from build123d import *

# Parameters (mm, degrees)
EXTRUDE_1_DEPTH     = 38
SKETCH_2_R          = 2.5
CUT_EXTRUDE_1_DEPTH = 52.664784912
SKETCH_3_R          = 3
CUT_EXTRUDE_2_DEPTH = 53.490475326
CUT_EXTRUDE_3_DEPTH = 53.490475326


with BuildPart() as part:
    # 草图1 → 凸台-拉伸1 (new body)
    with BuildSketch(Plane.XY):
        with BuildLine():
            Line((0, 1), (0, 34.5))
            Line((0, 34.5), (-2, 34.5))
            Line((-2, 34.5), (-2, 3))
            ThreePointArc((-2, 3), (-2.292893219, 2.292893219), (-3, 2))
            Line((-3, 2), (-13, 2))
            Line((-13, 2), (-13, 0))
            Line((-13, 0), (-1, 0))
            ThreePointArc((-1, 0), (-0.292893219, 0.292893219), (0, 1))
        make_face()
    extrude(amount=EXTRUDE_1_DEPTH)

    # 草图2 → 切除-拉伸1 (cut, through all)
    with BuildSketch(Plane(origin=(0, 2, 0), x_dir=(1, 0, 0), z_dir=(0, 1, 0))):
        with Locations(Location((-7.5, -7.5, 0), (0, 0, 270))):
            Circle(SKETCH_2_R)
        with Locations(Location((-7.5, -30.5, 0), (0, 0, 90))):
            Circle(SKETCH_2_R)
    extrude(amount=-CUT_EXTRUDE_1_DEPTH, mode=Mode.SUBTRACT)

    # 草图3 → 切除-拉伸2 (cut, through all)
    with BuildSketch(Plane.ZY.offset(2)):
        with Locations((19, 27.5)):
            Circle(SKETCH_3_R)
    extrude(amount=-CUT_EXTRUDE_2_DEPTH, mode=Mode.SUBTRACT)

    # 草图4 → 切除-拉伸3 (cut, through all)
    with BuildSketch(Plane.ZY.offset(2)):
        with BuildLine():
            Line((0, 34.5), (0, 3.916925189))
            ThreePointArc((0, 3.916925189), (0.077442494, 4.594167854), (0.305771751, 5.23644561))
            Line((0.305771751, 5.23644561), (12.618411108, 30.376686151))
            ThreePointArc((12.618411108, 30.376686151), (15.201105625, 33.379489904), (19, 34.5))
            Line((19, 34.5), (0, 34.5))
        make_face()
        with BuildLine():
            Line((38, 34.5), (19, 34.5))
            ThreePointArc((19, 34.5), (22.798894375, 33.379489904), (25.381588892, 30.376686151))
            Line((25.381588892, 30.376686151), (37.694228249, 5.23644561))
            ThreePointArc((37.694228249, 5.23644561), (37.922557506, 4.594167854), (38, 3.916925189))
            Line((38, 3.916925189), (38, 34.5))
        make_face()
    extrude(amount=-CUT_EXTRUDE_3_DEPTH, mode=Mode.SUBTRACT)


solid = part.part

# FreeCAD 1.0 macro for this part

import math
import FreeCAD as App
import Part
import Sketcher
from FreeCAD import Vector

doc = App.newDocument("Part")
body = doc.addObject("PartDesign::Body", "Body")

sketch1 = doc.addObject("Sketcher::SketchObject", "Sketch")
body.addObject(sketch1)
sketch1.AttachmentSupport = (doc.XY_Plane, [""])
sketch1.MapMode = "FlatFace"
sketch1.addGeometry(Part.LineSegment(Vector(0, 1, 0), Vector(0, 34.5, 0)), False)
sketch1.addGeometry(Part.LineSegment(Vector(0, 34.5, 0), Vector(-2, 34.5, 0)), False)
sketch1.addGeometry(Part.LineSegment(Vector(-2, 34.5, 0), Vector(-2, 3, 0)), False)
sketch1.addGeometry(Part.ArcOfCircle(Part.Circle(Vector(-3, 3, 0), Vector(0, 0, 1), 1), math.radians(-90), math.radians(0)), False)
sketch1.addGeometry(Part.LineSegment(Vector(-3, 2, 0), Vector(-13, 2, 0)), False)
sketch1.addGeometry(Part.LineSegment(Vector(-13, 2, 0), Vector(-13, 0, 0)), False)
sketch1.addGeometry(Part.LineSegment(Vector(-13, 0, 0), Vector(-1, 0, 0)), False)
sketch1.addGeometry(Part.ArcOfCircle(Part.Circle(Vector(-1, 1, 0), Vector(0, 0, 1), 1), math.radians(-90), math.radians(0)), False)
sketch1.addConstraint(Sketcher.Constraint("Coincident", 0, 2, 1, 1))
sketch1.addConstraint(Sketcher.Constraint("Coincident", 1, 2, 2, 1))
sketch1.addConstraint(Sketcher.Constraint("Tangent", 2, 2, 3, 2))
sketch1.addConstraint(Sketcher.Constraint("Tangent", 3, 1, 4, 1))
sketch1.addConstraint(Sketcher.Constraint("Coincident", 4, 2, 5, 1))
sketch1.addConstraint(Sketcher.Constraint("Coincident", 5, 2, 6, 1))
sketch1.addConstraint(Sketcher.Constraint("Tangent", 6, 2, 7, 1))
sketch1.addConstraint(Sketcher.Constraint("Tangent", 7, 2, 0, 1))
sketch1.addConstraint(Sketcher.Constraint("Vertical", 0))
sketch1.addConstraint(Sketcher.Constraint("Horizontal", 1))
sketch1.addConstraint(Sketcher.Constraint("Vertical", 2))
sketch1.addConstraint(Sketcher.Constraint("Horizontal", 4))
sketch1.addConstraint(Sketcher.Constraint("Vertical", 5))
sketch1.addConstraint(Sketcher.Constraint("Horizontal", 6))
sketch1.addConstraint(Sketcher.Constraint("Equal", 3, 7))
sketch1.addConstraint(Sketcher.Constraint("PointOnObject", 0, 2, -2))
sketch1.addConstraint(Sketcher.Constraint("PointOnObject", 5, 2, -1))
sketch1.addConstraint(Sketcher.Constraint("Equal", 1, 5))
sketch1.addConstraint(Sketcher.Constraint("Radius", 3, 1.0))
sketch1.addConstraint(Sketcher.Constraint("DistanceX", 1, 2, 1, 1, 2.0))
sketch1.addConstraint(Sketcher.Constraint("DistanceX", 4, 2, 4, 1, 10.0))
sketch1.addConstraint(Sketcher.Constraint("DistanceY", 0, 1, 0, 2, 33.5))
pad1 = doc.addObject("PartDesign::Pad", "Pad")
body.addObject(pad1)
pad1.Profile = sketch1
pad1.Length = 38

sketch2 = doc.addObject("Sketcher::SketchObject", "Sketch001")
body.addObject(sketch2)
sketch2.AttachmentSupport = (doc.XZ_Plane, [""])
sketch2.MapMode = "FlatFace"
sketch2.AttachmentOffset = App.Placement(Vector(0, 0, -2), App.Rotation())
sketch2.addGeometry(Part.Circle(Vector(-7.5, 7.5, 0), Vector(0, 0, 1), 2.5), False)
sketch2.addGeometry(Part.Circle(Vector(-7.5, 30.5, 0), Vector(0, 0, 1), 2.5), False)
sketch2.addConstraint(Sketcher.Constraint("Equal", 0, 1))
sketch2.addConstraint(Sketcher.Constraint("Vertical", 0, 3, 1, 3))
sketch2.addConstraint(Sketcher.Constraint("Diameter", 0, 5.0))
sketch2.addConstraint(Sketcher.Constraint("DistanceY", 0, 3, 1, 3, 23.0))
sketch2.addConstraint(Sketcher.Constraint("DistanceX", 0, 3, -1, 1, 7.5))
sketch2.addConstraint(Sketcher.Constraint("DistanceY", -1, 1, 0, 3, 7.5))
pocket1 = doc.addObject("PartDesign::Pocket", "Pocket")
body.addObject(pocket1)
pocket1.Profile = sketch2
pocket1.Type = "ThroughAll"
pocket1.Reversed = True

sketch3 = doc.addObject("Sketcher::SketchObject", "Sketch002")
body.addObject(sketch3)
sketch3.AttachmentSupport = (doc.YZ_Plane, [""])
sketch3.MapMode = "FlatFace"
sketch3.AttachmentOffset = App.Placement(Vector(0, 0, -2), App.Rotation())
sketch3.addGeometry(Part.Circle(Vector(27.5, 19, 0), Vector(0, 0, 1), 3), False)
sketch3.addConstraint(Sketcher.Constraint("Diameter", 0, 6.0))
sketch3.addConstraint(Sketcher.Constraint("DistanceY", -1, 1, 0, 3, 19.0))
sketch3.addConstraint(Sketcher.Constraint("DistanceX", -1, 1, 0, 3, 27.5))
pocket2 = doc.addObject("PartDesign::Pocket", "Pocket001")
body.addObject(pocket2)
pocket2.Profile = sketch3
pocket2.Type = "ThroughAll"
pocket2.Reversed = True

sketch4 = doc.addObject("Sketcher::SketchObject", "Sketch003")
body.addObject(sketch4)
sketch4.AttachmentSupport = (doc.YZ_Plane, [""])
sketch4.MapMode = "FlatFace"
sketch4.AttachmentOffset = App.Placement(Vector(0, 0, -2), App.Rotation())
sketch4.addGeometry(Part.LineSegment(Vector(34.5, 0, 0), Vector(3.9, 0, 0)), False)
sketch4.addGeometry(Part.ArcOfCircle(Part.Circle(Vector(3.9, 3, 0), Vector(0, 0, 1), 3), math.radians(-90), math.radians(-64)), False)
sketch4.addGeometry(Part.LineSegment(Vector(5.2, 0.3, 0), Vector(30.4, 12.6, 0)), False)
sketch4.addGeometry(Part.ArcOfCircle(Part.Circle(Vector(27.5, 19, 0), Vector(0, 0, 1), 7), math.radians(-66), math.radians(0)), False)
sketch4.addGeometry(Part.LineSegment(Vector(34.5, 19, 0), Vector(34.5, 0, 0)), False)
sketch4.addGeometry(Part.LineSegment(Vector(34.5, 38, 0), Vector(34.5, 19, 0)), False)
sketch4.addGeometry(Part.ArcOfCircle(Part.Circle(Vector(27.5, 19, 0), Vector(0, 0, 1), 7), math.radians(0), math.radians(66)), False)
sketch4.addGeometry(Part.LineSegment(Vector(30.4, 25.4, 0), Vector(5.2, 37.7, 0)), False)
sketch4.addGeometry(Part.ArcOfCircle(Part.Circle(Vector(3.9, 35, 0), Vector(0, 0, 1), 3), math.radians(64), math.radians(90)), False)
sketch4.addGeometry(Part.LineSegment(Vector(3.9, 38, 0), Vector(34.5, 38, 0)), False)
sketch4.addConstraint(Sketcher.Constraint("Tangent", 0, 2, 1, 1))
sketch4.addConstraint(Sketcher.Constraint("Tangent", 1, 2, 2, 1))
sketch4.addConstraint(Sketcher.Constraint("Coincident", 2, 2, 3, 1))
sketch4.addConstraint(Sketcher.Constraint("Tangent", 3, 2, 4, 1))
sketch4.addConstraint(Sketcher.Constraint("Coincident", 4, 2, 0, 1))
sketch4.addConstraint(Sketcher.Constraint("Tangent", 5, 2, 6, 1))
sketch4.addConstraint(Sketcher.Constraint("Coincident", 6, 2, 7, 1))
sketch4.addConstraint(Sketcher.Constraint("Tangent", 7, 2, 8, 1))
sketch4.addConstraint(Sketcher.Constraint("Tangent", 8, 2, 9, 1))
sketch4.addConstraint(Sketcher.Constraint("Coincident", 9, 2, 5, 1))
sketch4.addConstraint(Sketcher.Constraint("Horizontal", 0))
sketch4.addConstraint(Sketcher.Constraint("Vertical", 4))
sketch4.addConstraint(Sketcher.Constraint("Vertical", 5))
sketch4.addConstraint(Sketcher.Constraint("Horizontal", 9))
sketch4.addConstraint(Sketcher.Constraint("Coincident", 6, 3, 3, 3))
sketch4.addConstraint(Sketcher.Constraint("Equal", 3, 6))
sketch4.addConstraint(Sketcher.Constraint("Equal", 1, 8))
sketch4.addConstraint(Sketcher.Constraint("PointOnObject", 0, 2, -1))
sketch4.addConstraint(Sketcher.Constraint("Vertical", 1, 3, 8, 3))
sketch4.addConstraint(Sketcher.Constraint("Vertical", 2, 2, 6, 2))
sketch4.addConstraint(Sketcher.Constraint("Vertical", 1, 2, 7, 2))
sketch4.addConstraint(Sketcher.Constraint("Radius", 1, 3.0))
sketch4.addConstraint(Sketcher.Constraint("Radius", 3, 7.0))
sketch4.addConstraint(Sketcher.Constraint("DistanceY", 4, 2, 4, 1, 19.0))
sketch4.addConstraint(Sketcher.Constraint("DistanceX", -1, 1, 3, 3, 27.5))
sketch4.addConstraint(Sketcher.Constraint("Distance", 2, 27.993442))
sketch4.addConstraint(Sketcher.Constraint("DistanceX", 0, 2, 0, 1, 30.583075))
pocket3 = doc.addObject("PartDesign::Pocket", "Pocket002")
body.addObject(pocket3)
pocket3.Profile = sketch4
pocket3.Type = "ThroughAll"
pocket3.Reversed = True

doc.recompute()
